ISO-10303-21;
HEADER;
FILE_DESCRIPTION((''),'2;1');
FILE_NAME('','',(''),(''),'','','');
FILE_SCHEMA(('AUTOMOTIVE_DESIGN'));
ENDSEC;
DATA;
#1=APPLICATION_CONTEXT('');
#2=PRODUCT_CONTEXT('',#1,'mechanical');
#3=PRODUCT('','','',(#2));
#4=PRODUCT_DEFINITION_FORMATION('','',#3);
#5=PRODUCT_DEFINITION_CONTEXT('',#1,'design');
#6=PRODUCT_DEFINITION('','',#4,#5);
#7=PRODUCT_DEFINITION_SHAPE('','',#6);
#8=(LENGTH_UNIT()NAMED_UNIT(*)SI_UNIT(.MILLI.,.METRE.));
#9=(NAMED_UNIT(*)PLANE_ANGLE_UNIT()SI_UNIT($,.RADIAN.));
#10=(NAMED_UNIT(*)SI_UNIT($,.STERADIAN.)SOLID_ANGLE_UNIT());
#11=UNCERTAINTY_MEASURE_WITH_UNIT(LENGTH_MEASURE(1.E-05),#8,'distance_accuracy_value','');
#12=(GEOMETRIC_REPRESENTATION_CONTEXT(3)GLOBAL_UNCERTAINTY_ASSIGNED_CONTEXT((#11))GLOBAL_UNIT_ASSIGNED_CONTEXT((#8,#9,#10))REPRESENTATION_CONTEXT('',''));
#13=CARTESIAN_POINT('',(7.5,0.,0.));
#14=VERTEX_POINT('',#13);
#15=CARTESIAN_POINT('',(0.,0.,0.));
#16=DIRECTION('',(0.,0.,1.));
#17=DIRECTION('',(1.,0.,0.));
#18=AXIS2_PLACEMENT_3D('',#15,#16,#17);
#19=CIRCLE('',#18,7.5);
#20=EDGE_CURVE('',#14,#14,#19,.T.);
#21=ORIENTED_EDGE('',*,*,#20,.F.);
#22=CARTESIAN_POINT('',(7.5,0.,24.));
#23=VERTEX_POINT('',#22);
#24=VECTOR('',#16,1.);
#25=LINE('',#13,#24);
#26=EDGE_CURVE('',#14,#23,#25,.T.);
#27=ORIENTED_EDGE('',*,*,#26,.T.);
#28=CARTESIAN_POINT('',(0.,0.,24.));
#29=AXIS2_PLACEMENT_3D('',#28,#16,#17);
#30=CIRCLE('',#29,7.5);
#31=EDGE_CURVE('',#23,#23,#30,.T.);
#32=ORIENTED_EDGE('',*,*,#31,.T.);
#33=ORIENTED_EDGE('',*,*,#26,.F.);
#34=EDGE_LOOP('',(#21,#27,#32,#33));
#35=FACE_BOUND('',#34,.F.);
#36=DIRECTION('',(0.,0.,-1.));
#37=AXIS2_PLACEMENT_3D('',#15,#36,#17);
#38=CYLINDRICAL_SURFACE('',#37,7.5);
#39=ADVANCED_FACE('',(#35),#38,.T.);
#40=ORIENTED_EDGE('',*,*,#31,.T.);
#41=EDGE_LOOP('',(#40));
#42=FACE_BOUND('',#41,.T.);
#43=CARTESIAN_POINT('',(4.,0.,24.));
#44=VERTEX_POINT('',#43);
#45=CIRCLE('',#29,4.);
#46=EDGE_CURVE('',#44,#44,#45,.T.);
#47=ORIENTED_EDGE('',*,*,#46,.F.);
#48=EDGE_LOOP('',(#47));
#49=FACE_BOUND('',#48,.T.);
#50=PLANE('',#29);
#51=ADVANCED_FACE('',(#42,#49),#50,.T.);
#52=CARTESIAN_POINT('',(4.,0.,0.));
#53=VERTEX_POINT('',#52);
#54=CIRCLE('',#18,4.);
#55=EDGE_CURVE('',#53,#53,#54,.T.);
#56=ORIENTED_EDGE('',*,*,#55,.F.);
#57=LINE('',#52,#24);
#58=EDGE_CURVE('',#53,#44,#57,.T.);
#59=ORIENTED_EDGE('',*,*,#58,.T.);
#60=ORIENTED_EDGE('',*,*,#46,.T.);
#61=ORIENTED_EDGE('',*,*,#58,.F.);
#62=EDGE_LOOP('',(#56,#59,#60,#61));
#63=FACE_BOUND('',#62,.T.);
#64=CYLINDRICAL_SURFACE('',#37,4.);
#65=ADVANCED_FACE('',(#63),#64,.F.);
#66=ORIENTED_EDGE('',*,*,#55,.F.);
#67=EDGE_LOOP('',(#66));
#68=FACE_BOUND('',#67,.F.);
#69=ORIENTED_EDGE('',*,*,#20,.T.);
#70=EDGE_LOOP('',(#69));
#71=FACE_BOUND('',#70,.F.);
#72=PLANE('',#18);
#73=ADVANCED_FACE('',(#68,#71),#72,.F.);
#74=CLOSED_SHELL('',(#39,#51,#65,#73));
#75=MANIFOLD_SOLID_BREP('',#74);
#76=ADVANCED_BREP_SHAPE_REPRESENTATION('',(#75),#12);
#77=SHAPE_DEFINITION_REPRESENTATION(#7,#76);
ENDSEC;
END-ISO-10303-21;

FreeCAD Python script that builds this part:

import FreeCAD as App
import Part
import Sketcher
Q = App.Units.Quantity

doc = App.newDocument("Part")
params = doc.addObject("Spreadsheet::Sheet", "Params")
for row, (alias, value) in enumerate([
    ("sketch1_diameter", "15 mm"),
    ("sketch1_diameter2", "8 mm"),
    ("pad1_length", "24 mm"),
], start=1):
    params.set(f"A{row}", alias)
    params.set(f"B{row}", "=" + value)
    params.setAlias(f"B{row}", alias)

body = doc.addObject("PartDesign::Body", "Body")

# Sketch on XY plane
sketch1 = body.newObject("Sketcher::SketchObject", "Sketch")
sketch1.AttachmentSupport = (doc.getObject("XY_Plane"), [""])
sketch1.MapMode = "FlatFace"
sketch1.addGeometry([
    Part.Circle(App.Vector(0, 0, 0), App.Vector(0, 0, 1), 7.5),
    Part.Circle(App.Vector(0, 0, 0), App.Vector(0, 0, 1), 4),
], False)
sketch1.addConstraint([
    Sketcher.Constraint("Coincident", 0, 3, -1, 1),
    Sketcher.Constraint("Coincident", 1, 3, -1, 1),
    Sketcher.Constraint("Diameter", 0, Q("15 mm")),
    Sketcher.Constraint("Diameter", 1, Q("8 mm")),
])
sketch1.setExpression("Constraints[2]", "Params.sketch1_diameter")
sketch1.setExpression("Constraints[3]", "Params.sketch1_diameter2")
pad1 = body.newObject("PartDesign::Pad", "Pad")
pad1.Profile = sketch1
pad1.setExpression("Length", "Params.pad1_length")

doc.recompute()
